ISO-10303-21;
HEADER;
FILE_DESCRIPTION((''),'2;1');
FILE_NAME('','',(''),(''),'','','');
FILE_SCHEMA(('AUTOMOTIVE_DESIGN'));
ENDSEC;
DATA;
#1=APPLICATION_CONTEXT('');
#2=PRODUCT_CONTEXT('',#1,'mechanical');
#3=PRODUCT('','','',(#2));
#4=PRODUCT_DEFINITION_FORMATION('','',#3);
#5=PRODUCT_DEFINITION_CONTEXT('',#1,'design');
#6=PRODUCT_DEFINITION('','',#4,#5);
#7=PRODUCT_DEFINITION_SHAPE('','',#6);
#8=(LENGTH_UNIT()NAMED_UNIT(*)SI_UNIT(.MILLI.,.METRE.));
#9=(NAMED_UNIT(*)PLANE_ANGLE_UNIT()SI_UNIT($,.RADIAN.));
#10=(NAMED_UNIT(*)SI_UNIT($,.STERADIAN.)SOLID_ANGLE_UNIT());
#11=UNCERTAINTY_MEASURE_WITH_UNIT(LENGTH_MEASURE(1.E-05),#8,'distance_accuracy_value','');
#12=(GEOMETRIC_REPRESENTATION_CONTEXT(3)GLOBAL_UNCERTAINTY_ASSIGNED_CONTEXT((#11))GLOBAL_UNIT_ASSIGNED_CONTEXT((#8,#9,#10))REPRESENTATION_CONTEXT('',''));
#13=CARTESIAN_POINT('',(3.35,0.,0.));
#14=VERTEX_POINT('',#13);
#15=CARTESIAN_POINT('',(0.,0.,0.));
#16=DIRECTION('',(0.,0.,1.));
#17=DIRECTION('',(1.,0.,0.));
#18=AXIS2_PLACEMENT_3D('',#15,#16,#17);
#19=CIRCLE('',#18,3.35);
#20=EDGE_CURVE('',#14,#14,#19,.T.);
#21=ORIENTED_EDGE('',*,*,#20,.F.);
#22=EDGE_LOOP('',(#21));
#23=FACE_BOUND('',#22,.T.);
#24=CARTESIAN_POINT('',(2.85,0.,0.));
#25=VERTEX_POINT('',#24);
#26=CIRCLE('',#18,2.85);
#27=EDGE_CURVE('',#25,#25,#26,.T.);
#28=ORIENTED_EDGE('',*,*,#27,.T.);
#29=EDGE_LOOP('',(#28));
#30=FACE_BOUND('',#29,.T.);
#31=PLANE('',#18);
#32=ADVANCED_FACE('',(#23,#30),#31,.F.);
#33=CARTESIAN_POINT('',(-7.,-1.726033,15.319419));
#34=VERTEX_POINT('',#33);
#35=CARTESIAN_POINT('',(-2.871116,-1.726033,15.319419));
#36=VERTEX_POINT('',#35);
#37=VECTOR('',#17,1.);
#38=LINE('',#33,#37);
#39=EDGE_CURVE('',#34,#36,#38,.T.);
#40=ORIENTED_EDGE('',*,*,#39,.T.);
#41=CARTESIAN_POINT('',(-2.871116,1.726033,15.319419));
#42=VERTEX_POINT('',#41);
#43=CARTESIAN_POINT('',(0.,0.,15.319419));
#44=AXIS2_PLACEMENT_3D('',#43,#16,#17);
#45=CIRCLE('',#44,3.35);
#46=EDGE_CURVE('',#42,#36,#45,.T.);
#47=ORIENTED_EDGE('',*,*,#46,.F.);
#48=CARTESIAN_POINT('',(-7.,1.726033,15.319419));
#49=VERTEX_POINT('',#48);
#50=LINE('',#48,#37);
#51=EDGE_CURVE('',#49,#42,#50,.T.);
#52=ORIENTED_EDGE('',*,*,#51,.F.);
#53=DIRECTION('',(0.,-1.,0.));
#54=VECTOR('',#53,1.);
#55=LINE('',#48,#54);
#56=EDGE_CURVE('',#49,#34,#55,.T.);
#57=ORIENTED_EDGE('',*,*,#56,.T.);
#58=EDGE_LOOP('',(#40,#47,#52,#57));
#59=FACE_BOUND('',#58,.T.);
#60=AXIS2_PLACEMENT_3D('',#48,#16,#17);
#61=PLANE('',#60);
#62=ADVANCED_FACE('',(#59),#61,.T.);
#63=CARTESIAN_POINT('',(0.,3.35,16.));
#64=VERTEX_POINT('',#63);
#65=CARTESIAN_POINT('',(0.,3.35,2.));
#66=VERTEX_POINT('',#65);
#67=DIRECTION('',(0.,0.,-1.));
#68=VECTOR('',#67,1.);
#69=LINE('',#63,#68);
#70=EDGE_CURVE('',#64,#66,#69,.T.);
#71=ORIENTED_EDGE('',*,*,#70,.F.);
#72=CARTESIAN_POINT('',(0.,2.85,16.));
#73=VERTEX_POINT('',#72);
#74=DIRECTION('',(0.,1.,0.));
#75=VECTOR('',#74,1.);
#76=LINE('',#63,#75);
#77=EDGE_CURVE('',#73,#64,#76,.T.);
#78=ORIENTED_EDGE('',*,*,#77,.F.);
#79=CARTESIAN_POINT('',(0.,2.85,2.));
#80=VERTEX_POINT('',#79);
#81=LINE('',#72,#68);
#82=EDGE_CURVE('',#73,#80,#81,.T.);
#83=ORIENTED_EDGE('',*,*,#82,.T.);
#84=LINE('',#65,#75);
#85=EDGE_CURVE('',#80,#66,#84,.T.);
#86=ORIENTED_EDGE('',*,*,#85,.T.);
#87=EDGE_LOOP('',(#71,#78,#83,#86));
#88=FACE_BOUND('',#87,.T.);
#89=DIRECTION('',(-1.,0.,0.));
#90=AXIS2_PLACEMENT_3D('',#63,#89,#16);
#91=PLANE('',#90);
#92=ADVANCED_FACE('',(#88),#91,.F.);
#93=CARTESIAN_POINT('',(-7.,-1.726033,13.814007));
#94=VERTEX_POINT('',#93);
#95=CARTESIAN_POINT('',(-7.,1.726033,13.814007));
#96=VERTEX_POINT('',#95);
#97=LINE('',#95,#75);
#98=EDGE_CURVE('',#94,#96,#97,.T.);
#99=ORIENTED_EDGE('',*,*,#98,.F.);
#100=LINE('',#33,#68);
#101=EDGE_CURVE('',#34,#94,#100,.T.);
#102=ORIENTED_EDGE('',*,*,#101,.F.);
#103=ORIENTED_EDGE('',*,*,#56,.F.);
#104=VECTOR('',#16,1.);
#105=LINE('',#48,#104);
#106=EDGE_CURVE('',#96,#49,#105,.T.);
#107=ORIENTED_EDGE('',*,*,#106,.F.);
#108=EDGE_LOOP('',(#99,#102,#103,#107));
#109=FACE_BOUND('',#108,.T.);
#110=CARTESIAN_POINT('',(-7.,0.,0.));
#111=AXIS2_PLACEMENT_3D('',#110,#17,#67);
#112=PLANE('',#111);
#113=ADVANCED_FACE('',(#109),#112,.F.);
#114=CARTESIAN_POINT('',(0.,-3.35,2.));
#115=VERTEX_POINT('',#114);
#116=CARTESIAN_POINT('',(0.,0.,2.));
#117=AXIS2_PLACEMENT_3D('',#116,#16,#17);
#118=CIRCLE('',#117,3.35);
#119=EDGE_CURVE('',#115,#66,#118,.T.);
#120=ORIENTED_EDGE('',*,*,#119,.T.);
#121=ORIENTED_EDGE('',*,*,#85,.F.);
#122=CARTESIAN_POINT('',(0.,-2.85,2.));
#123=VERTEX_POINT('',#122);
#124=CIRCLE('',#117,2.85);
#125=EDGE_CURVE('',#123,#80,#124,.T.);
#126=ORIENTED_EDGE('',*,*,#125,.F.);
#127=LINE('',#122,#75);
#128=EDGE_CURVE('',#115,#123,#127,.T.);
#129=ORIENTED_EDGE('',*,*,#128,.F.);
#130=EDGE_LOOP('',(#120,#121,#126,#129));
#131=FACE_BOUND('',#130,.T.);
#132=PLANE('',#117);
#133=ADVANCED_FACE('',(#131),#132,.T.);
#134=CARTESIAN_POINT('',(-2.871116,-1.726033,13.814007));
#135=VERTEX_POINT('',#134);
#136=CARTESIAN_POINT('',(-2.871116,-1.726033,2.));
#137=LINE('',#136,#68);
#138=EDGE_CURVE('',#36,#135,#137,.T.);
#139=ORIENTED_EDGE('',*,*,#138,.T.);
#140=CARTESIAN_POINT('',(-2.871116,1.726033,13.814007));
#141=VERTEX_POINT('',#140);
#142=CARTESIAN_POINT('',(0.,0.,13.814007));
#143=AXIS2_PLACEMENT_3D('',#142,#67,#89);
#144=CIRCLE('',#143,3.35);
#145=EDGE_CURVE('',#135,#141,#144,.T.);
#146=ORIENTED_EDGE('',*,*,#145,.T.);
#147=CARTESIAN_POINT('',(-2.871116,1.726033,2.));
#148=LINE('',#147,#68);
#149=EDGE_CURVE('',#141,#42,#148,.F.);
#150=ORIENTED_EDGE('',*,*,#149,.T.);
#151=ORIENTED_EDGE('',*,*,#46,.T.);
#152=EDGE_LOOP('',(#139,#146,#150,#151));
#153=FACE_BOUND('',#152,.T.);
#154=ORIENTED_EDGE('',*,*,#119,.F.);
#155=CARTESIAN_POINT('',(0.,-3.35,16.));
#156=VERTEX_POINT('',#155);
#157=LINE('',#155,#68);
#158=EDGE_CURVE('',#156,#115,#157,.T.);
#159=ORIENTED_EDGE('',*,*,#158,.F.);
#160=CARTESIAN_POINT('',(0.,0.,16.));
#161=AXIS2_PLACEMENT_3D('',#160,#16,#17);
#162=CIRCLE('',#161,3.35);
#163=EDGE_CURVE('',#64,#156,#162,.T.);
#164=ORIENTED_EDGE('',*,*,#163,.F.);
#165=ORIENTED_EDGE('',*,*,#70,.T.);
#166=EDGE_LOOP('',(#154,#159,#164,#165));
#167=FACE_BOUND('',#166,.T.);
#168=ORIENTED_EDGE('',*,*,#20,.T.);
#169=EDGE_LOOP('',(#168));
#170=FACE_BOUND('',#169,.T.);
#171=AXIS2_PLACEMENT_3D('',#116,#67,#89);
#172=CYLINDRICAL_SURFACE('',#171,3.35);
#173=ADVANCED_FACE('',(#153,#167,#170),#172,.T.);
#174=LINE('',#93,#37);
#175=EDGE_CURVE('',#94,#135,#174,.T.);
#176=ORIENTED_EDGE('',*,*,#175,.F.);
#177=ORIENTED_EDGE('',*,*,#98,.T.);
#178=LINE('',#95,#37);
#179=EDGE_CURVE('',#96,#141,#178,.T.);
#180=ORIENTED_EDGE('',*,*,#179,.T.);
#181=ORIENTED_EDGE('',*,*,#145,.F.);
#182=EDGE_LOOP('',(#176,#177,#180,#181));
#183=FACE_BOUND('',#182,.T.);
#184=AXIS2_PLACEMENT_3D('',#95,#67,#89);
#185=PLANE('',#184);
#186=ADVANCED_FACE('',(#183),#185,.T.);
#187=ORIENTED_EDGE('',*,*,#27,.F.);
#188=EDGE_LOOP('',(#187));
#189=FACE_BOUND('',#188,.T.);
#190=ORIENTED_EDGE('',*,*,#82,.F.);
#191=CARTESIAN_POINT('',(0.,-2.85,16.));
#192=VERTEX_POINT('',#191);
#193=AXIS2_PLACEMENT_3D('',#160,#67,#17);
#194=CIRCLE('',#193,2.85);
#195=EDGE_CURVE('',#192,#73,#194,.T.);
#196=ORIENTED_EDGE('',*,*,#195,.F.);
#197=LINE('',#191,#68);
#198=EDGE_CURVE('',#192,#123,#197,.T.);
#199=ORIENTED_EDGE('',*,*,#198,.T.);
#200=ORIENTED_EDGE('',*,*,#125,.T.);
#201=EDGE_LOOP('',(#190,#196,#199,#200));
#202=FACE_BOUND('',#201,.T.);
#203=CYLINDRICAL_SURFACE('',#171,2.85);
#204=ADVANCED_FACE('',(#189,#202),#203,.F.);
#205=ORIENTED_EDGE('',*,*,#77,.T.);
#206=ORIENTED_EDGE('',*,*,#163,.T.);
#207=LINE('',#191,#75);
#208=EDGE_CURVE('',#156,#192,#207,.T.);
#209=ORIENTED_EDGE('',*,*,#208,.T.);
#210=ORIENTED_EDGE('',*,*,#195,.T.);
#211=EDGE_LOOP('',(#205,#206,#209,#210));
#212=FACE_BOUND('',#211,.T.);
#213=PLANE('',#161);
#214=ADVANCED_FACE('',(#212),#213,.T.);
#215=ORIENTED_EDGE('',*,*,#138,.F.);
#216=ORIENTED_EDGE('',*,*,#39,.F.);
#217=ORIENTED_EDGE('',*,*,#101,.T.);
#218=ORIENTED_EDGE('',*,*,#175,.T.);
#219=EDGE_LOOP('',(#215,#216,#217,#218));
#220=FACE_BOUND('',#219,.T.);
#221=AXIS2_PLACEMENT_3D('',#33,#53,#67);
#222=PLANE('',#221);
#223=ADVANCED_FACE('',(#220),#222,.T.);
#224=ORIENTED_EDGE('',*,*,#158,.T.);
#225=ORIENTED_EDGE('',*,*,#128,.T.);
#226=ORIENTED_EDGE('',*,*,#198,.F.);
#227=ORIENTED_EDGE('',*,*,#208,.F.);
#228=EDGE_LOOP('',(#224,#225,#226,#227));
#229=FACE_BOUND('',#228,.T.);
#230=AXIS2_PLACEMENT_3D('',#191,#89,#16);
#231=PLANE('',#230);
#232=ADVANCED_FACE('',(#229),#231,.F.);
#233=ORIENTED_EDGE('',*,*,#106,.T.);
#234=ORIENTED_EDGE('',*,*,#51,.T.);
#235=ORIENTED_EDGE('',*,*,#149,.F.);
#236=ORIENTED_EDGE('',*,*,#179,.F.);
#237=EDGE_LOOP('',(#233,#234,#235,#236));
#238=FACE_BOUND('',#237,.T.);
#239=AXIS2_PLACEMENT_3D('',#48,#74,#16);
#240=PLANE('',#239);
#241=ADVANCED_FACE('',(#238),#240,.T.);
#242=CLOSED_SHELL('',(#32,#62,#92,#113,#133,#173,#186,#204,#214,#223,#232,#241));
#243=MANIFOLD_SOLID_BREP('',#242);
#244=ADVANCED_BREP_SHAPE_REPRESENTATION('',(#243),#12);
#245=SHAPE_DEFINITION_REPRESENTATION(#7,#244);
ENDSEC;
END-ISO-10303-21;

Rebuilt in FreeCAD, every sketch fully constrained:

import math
import FreeCAD as App
import Part
import Sketcher
Q = App.Units.Quantity

doc = App.newDocument("Part")
body = doc.addObject("PartDesign::Body", "Body")

# Sketch on XY plane
sketch1 = body.newObject("Sketcher::SketchObject", "Sketch")
sketch1.AttachmentSupport = (doc.getObject("XY_Plane"), [""])
sketch1.MapMode = "FlatFace"
sketch1.addGeometry(Part.Circle(App.Vector(0, 0, 0), App.Vector(0, 0, 1), 3.35), False)
sketch1.addGeometry(Part.Circle(App.Vector(0, 0, 0), App.Vector(0, 0, 1), 2.85), False)
sketch1.addConstraint(Sketcher.Constraint("Coincident", 0, 3, -1, 1))
sketch1.addConstraint(Sketcher.Constraint("Coincident", 1, 3, -1, 1))
sketch1.addConstraint(Sketcher.Constraint("Diameter", 0, Q("6.7 mm")))
sketch1.addConstraint(Sketcher.Constraint("Diameter", 1, Q("5.7 mm")))
pad1 = body.newObject("PartDesign::Pad", "Pad")
pad1.Profile = sketch1
pad1.Length = 2

# Sketch on XY plane
sketch2 = body.newObject("Sketcher::SketchObject", "Sketch001")
sketch2.AttachmentSupport = (doc.getObject("XY_Plane"), [""])
sketch2.MapMode = "FlatFace"
sketch2.AttachmentOffset = App.Placement(App.Vector(0, 0, 2), App.Rotation())
sketch2.addGeometry(Part.LineSegment(App.Vector(0, 2.85, 0), App.Vector(0, 3.35, 0)), False)
sketch2.addGeometry(Part.ArcOfCircle(Part.Circle(App.Vector(0, 0, 0), App.Vector(0, 0, 1), 3.35), math.radians(90), math.radians(270)), False)
sketch2.addGeometry(Part.LineSegment(App.Vector(0, -3.35, 0), App.Vector(0, -2.85, 0)), False)
sketch2.addGeometry(Part.ArcOfCircle(Part.Circle(App.Vector(0, 0, 0), App.Vector(0, 0, 1), 2.85), math.radians(90), math.radians(270)), False)
sketch2.addConstraint(Sketcher.Constraint("Coincident", 0, 2, 1, 1))
sketch2.addConstraint(Sketcher.Constraint("Coincident", 1, 2, 2, 1))
sketch2.addConstraint(Sketcher.Constraint("Coincident", 2, 2, 3, 2))
sketch2.addConstraint(Sketcher.Constraint("Coincident", 3, 1, 0, 1))
sketch2.addConstraint(Sketcher.Constraint("Vertical", 0))
sketch2.addConstraint(Sketcher.Constraint("Vertical", 2))
sketch2.addConstraint(Sketcher.Constraint("Coincident", 1, 3, -1, 1))
sketch2.addConstraint(Sketcher.Constraint("Coincident", 3, 3, -1, 1))
sketch2.addConstraint(Sketcher.Constraint("PointOnObject", 0, 2, -2))
sketch2.addConstraint(Sketcher.Constraint("PointOnObject", 1, 2, -2))
sketch2.addConstraint(Sketcher.Constraint("Radius", 1, Q("3.35 mm")))
sketch2.addConstraint(Sketcher.Constraint("Radius", 3, Q("2.85 mm")))
pad2 = body.newObject("PartDesign::Pad", "Pad001")
pad2.Profile = sketch2
pad2.Length = 14

# Sketch on YZ plane
sketch3 = body.newObject("Sketcher::SketchObject", "Sketch002")
sketch3.AttachmentSupport = (doc.getObject("YZ_Plane"), [""])
sketch3.MapMode = "FlatFace"
sketch3.addGeometry(Part.LineSegment(App.Vector(1.726033, 15.319419, 0), App.Vector(-1.726033, 15.319419, 0)), False)
sketch3.addGeometry(Part.LineSegment(App.Vector(-1.726033, 15.319419, 0), App.Vector(-1.726033, 13.814007, 0)), False)
sketch3.addGeometry(Part.LineSegment(App.Vector(-1.726033, 13.814007, 0), App.Vector(1.726033, 13.814007, 0)), False)
sketch3.addGeometry(Part.LineSegment(App.Vector(1.726033, 13.814007, 0), App.Vector(1.726033, 15.319419, 0)), False)
sketch3.addConstraint(Sketcher.Constraint("Coincident", 0, 2, 1, 1))
sketch3.addConstraint(Sketcher.Constraint("Coincident", 1, 2, 2, 1))
sketch3.addConstraint(Sketcher.Constraint("Coincident", 2, 2, 3, 1))
sketch3.addConstraint(Sketcher.Constraint("Coincident", 3, 2, 0, 1))
sketch3.addConstraint(Sketcher.Constraint("Horizontal", 0))
sketch3.addConstraint(Sketcher.Constraint("Vertical", 1))
sketch3.addConstraint(Sketcher.Constraint("Horizontal", 2))
sketch3.addConstraint(Sketcher.Constraint("Vertical", 3))
sketch3.addConstraint(Sketcher.Constraint("DistanceX", 0, 2, 0, 1, Q("3.452067 mm")))
sketch3.addConstraint(Sketcher.Constraint("DistanceY", 1, 2, 1, 1, Q("1.505413 mm")))
sketch3.addConstraint(Sketcher.Constraint("DistanceY", -1, 1, 0, 2, Q("15.319419 mm")))
sketch3.addConstraint(Sketcher.Constraint("DistanceX", 0, 2, -1, 1, Q("1.726033 mm")))
pad3 = body.newObject("PartDesign::Pad", "Pad002")
pad3.Profile = sketch3
pad3.Length = 7
pad3.Reversed = True

# Sketch on XY plane
sketch4 = body.newObject("Sketcher::SketchObject", "Sketch003")
sketch4.AttachmentSupport = (doc.getObject("XY_Plane"), [""])
sketch4.MapMode = "FlatFace"
sketch4.AttachmentOffset = App.Placement(App.Vector(0, 0, 11), App.Rotation())
sketch4.addGeometry(Part.Circle(App.Vector(0, 0, 0), App.Vector(0, 0, 1), 2.85), False)
sketch4.addConstraint(Sketcher.Constraint("Coincident", 0, 3, -1, 1))
sketch4.addConstraint(Sketcher.Constraint("Diameter", 0, Q("5.7 mm")))
pocket1 = body.newObject("PartDesign::Pocket", "Pocket")
pocket1.Profile = sketch4
pocket1.Length = 5
pocket1.Reversed = True

doc.recompute()
